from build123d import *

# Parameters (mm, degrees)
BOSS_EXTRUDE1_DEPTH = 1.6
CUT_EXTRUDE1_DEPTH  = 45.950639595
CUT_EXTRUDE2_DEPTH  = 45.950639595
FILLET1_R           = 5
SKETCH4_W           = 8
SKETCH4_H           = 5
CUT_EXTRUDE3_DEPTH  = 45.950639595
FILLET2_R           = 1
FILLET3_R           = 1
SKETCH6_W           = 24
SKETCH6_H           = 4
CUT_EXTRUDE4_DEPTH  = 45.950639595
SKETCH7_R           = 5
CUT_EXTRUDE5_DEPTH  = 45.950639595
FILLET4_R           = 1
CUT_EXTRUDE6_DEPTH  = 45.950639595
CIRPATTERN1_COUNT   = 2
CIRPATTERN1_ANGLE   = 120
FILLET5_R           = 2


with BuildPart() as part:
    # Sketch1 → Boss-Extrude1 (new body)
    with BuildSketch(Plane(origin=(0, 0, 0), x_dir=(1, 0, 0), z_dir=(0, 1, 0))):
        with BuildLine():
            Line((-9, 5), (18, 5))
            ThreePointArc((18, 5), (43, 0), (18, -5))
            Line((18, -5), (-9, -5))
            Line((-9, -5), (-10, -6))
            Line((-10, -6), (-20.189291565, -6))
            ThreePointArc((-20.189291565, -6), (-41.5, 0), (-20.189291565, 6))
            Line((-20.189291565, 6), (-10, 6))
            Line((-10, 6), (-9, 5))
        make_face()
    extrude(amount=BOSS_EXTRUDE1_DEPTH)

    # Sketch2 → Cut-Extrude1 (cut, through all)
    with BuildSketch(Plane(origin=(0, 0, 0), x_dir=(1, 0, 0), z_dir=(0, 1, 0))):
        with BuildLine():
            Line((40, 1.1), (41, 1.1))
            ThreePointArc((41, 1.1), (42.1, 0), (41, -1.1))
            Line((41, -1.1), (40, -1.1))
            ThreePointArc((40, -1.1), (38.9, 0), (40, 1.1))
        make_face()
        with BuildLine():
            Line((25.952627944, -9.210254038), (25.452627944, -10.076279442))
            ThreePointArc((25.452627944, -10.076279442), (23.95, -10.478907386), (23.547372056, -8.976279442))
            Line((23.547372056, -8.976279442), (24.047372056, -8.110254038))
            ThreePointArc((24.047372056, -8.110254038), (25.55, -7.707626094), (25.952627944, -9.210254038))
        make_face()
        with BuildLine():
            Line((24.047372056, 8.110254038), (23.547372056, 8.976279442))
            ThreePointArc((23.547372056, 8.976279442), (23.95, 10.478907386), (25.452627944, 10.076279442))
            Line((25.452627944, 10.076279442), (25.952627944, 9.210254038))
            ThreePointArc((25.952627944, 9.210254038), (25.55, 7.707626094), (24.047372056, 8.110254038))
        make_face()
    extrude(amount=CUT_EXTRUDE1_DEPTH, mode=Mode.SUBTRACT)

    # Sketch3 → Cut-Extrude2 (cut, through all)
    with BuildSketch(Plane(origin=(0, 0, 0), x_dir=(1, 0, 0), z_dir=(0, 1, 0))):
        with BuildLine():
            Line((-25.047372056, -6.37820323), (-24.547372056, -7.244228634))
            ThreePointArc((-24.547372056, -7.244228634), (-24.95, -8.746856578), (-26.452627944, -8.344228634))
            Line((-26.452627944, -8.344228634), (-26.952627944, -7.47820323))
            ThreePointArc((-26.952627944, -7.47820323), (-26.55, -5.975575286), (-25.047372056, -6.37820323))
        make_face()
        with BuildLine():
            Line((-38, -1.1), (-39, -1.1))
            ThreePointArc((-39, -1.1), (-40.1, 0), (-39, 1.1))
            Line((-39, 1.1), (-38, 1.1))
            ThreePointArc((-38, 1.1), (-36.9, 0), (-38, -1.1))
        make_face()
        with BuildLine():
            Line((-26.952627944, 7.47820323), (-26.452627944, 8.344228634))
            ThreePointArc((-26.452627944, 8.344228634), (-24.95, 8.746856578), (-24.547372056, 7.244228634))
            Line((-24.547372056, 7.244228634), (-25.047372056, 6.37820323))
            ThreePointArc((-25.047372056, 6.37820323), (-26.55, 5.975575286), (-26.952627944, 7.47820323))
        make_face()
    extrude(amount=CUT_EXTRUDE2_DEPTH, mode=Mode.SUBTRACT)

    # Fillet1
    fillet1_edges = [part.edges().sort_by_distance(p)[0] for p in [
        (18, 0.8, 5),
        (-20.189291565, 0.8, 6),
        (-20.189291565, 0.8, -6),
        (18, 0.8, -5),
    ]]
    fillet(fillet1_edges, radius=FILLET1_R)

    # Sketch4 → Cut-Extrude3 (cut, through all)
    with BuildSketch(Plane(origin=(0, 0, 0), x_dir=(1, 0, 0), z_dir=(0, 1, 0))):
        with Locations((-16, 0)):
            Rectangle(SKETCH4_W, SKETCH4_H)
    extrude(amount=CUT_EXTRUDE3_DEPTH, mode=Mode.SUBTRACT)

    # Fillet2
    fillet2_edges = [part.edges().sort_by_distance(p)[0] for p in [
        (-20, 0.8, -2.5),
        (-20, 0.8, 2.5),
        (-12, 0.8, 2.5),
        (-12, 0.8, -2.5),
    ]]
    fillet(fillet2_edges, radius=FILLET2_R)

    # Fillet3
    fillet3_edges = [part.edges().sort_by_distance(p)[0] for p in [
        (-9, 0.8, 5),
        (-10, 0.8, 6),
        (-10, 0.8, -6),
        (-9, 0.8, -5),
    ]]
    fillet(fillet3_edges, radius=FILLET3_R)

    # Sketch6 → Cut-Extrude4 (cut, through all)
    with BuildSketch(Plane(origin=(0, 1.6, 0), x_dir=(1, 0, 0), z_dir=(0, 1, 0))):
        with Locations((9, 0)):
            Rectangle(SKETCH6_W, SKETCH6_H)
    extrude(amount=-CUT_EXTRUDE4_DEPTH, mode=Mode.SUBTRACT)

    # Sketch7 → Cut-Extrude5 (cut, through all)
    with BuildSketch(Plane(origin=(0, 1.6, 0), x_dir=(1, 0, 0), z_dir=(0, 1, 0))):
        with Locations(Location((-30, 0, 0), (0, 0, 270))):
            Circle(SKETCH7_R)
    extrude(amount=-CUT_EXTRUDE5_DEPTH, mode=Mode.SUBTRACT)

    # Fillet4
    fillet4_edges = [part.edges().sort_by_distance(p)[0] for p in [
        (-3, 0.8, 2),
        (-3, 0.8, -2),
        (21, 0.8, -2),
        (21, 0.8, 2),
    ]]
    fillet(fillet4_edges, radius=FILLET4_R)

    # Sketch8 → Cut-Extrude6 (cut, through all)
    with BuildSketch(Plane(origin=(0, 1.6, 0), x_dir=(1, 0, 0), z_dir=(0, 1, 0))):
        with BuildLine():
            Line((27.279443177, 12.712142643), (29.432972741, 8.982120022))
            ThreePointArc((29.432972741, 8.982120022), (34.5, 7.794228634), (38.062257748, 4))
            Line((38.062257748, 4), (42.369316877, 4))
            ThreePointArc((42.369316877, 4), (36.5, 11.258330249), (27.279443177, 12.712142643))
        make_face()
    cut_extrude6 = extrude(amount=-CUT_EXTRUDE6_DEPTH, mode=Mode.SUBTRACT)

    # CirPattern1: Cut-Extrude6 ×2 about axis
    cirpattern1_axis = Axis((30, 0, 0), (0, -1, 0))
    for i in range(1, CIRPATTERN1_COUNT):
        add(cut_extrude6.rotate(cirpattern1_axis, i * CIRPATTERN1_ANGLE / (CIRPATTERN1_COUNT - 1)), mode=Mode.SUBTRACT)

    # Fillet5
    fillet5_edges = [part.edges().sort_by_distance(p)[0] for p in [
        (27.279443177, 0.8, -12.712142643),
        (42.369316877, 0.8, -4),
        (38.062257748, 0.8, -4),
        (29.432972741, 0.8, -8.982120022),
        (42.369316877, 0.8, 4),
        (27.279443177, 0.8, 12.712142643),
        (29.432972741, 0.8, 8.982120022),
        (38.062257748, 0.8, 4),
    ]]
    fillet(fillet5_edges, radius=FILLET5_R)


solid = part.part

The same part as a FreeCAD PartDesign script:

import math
import FreeCAD as App
import Part
import Sketcher

V = App.Vector
Q = App.Units.Quantity


def edges_at(feature, points):
    """Names of the edges that pass closest to the given points."""
    edges = feature.Shape.Edges
    near = lambda p: min(range(len(edges)), key=lambda i: edges[i].distToShape(Part.Vertex(*p))[0])
    return sorted({f"Edge{near(p) + 1}" for p in points})


def add_polygon(sketch, points):
    """Adds a closed chain of lines whose ends are joined by coincident constraints."""
    first, n = sketch.GeometryCount, len(points)
    for a, b in zip(points, points[1:] + points[:1]):
        sketch.addGeometry(Part.LineSegment(App.Vector(*a, 0), App.Vector(*b, 0)), False)
    for i in range(n):
        sketch.addConstraint(Sketcher.Constraint("Coincident", first + i, 2, first + (i + 1) % n, 1))

doc = App.newDocument("Part")
body = doc.addObject("PartDesign::Body", "Body")

sketch1 = body.newObject("Sketcher::SketchObject", "Sketch")
sketch1.AttachmentSupport = (doc.getObject("XZ_Plane"), [""])
sketch1.MapMode = "FlatFace"
sketch1.addGeometry([
    Part.LineSegment(V(18, -5, 0), V(-9, -5, 0)),
    Part.LineSegment(V(-9, -5, 0), V(-10, -6, 0)),
    Part.LineSegment(V(-10, -6, 0), V(-20.189292, -6, 0)),
    Part.ArcOfCircle(Part.Circle(V(-30, 0, 0), V(0, 0, 1), 11.5), math.radians(31.448981), math.radians(328.551019)),
    Part.LineSegment(V(-20.189292, 6, 0), V(-10, 6, 0)),
    Part.LineSegment(V(-10, 6, 0), V(-9, 5, 0)),
    Part.LineSegment(V(-9, 5, 0), V(18, 5, 0)),
    Part.ArcOfCircle(Part.Circle(V(30, 0, 0), V(0, 0, 1), 13), math.radians(-157.380135), math.radians(157.380135)),
], False)
sketch1.addConstraint([
    Sketcher.Constraint("Coincident", 0, 2, 1, 1),
    Sketcher.Constraint("Coincident", 1, 2, 2, 1),
    Sketcher.Constraint("Coincident", 2, 2, 3, 2),
    Sketcher.Constraint("Coincident", 3, 1, 4, 1),
    Sketcher.Constraint("Coincident", 4, 2, 5, 1),
    Sketcher.Constraint("Coincident", 5, 2, 6, 1),
    Sketcher.Constraint("Coincident", 6, 2, 7, 2),
    Sketcher.Constraint("Coincident", 7, 1, 0, 1),
    Sketcher.Constraint("Horizontal", 0),
    Sketcher.Constraint("Horizontal", 2),
    Sketcher.Constraint("Horizontal", 4),
    Sketcher.Constraint("Horizontal", 6),
    Sketcher.Constraint("Symmetric", 3, 3, 7, 3, -1, 1),
    Sketcher.Constraint("Symmetric", 2, 2, 3, 1, -1),
    Sketcher.Constraint("Symmetric", 0, 2, 5, 2, -1),
    Sketcher.Constraint("Perpendicular", 1, 5),
    Sketcher.Constraint("Vertical", 1, 2, 4, 2),
    Sketcher.Constraint("Radius", 7, Q("13 mm")),
    Sketcher.Constraint("Radius", 3, Q("11.5 mm")),
    Sketcher.Constraint("DistanceX", 0, 2, 0, 1, Q("27 mm")),
    Sketcher.Constraint("DistanceX", 3, 3, -1, 1, Q("30 mm")),
    Sketcher.Constraint("DistanceX", 0, 2, -1, 1, Q("9 mm")),
    Sketcher.Constraint("DistanceX", 1, 2, -1, 1, Q("10 mm")),
])
pad1 = body.newObject("PartDesign::Pad", "Pad")
pad1.Profile = sketch1
pad1.Length = 1.6
pad1.Reversed = True

sketch2 = body.newObject("Sketcher::SketchObject", "Sketch001")
sketch2.AttachmentSupport = (doc.getObject("XZ_Plane"), [""])
sketch2.MapMode = "FlatFace"
sketch2.addGeometry([
    Part.LineSegment(V(41, -1.1, 0), V(40, -1.1, 0)),
    Part.ArcOfCircle(Part.Circle(V(40, 0, 0), V(0, 0, 1), 1.1), math.radians(90), math.radians(270)),
    Part.LineSegment(V(40, 1.1, 0), V(41, 1.1, 0)),
    Part.ArcOfCircle(Part.Circle(V(41, 0, 0), V(0, 0, 1), 1.1), math.radians(-90), math.radians(90)),
    Part.LineSegment(V(25.452628, 10.076279, 0), V(25.952628, 9.210254, 0)),
    Part.ArcOfCircle(Part.Circle(V(25, 8.660254, 0), V(0, 0, 1), 1.1), math.radians(-150), math.radians(30)),
    Part.LineSegment(V(24.047372, 8.110254, 0), V(23.547372, 8.976279, 0)),
    Part.ArcOfCircle(Part.Circle(V(24.5, 9.526279, 0), V(0, 0, 1), 1.1), math.radians(30), math.radians(210)),
    Part.LineSegment(V(23.547372, -8.976279, 0), V(24.047372, -8.110254, 0)),
    Part.ArcOfCircle(Part.Circle(V(25, -8.660254, 0), V(0, 0, 1), 1.1), math.radians(-30), math.radians(150)),
    Part.LineSegment(V(25.952628, -9.210254, 0), V(25.452628, -10.076279, 0)),
    Part.ArcOfCircle(Part.Circle(V(24.5, -9.526279, 0), V(0, 0, 1), 1.1), math.radians(150), math.radians(330)),
], False)
sketch2.addConstraint([
    Sketcher.Constraint("Tangent", 0, 2, 1, 2),
    Sketcher.Constraint("Tangent", 1, 1, 2, 1),
    Sketcher.Constraint("Tangent", 2, 2, 3, 2),
    Sketcher.Constraint("Tangent", 3, 1, 0, 1),
    Sketcher.Constraint("Tangent", 4, 2, 5, 2),
    Sketcher.Constraint("Tangent", 5, 1, 6, 1),
    Sketcher.Constraint("Tangent", 6, 2, 7, 2),
    Sketcher.Constraint("Tangent", 7, 1, 4, 1),
    Sketcher.Constraint("Tangent", 8, 2, 9, 2),
    Sketcher.Constraint("Tangent", 9, 1, 10, 1),
    Sketcher.Constraint("Tangent", 10, 2, 11, 2),
    Sketcher.Constraint("Tangent", 11, 1, 8, 1),
    Sketcher.Constraint("Horizontal", 0),
    Sketcher.Constraint("Horizontal", 2),
    Sketcher.Constraint("Equal", 3, 5),
    Sketcher.Constraint("Equal", 5, 7),
    Sketcher.Constraint("Equal", 7, 9),
    Sketcher.Constraint("Equal", 9, 11),
    Sketcher.Constraint("Symmetric", 5, 3, 9, 3, -1),
    Sketcher.Constraint("Symmetric", 7, 3, 11, 3, -1),
    Sketcher.Constraint("PointOnObject", 1, 3, -1),
    Sketcher.Constraint("Radius", 1, Q("1.1 mm")),
    Sketcher.Constraint("DistanceX", 0, 2, 0, 1, Q("1 mm")),
    Sketcher.Constraint("Angle", 4, Q("-60 deg")),
    Sketcher.Constraint("Distance", 4, Q("1 mm")),
    Sketcher.Constraint("DistanceX", -1, 1, 1, 3, Q("40 mm")),
    Sketcher.Constraint("DistanceX", -1, 1, 5, 3, Q("25 mm")),
    Sketcher.Constraint("DistanceY", -1, 1, 7, 3, Q("9.526279 mm")),
])
pocket1 = body.newObject("PartDesign::Pocket", "Pocket")
pocket1.Profile = sketch2
pocket1.Type = "ThroughAll"

sketch3 = body.newObject("Sketcher::SketchObject", "Sketch002")
sketch3.AttachmentSupport = (doc.getObject("XZ_Plane"), [""])
sketch3.MapMode = "FlatFace"
sketch3.addGeometry([
    Part.LineSegment(V(-24.547372, 7.244229, 0), V(-25.047372, 6.378203, 0)),
    Part.ArcOfCircle(Part.Circle(V(-26, 6.928203, 0), V(0, 0, 1), 1.1), math.radians(150), math.radians(330)),
    Part.LineSegment(V(-26.952628, 7.478203, 0), V(-26.452628, 8.344229, 0)),
    Part.ArcOfCircle(Part.Circle(V(-25.5, 7.794229, 0), V(0, 0, 1), 1.1), math.radians(-30), math.radians(150)),
    Part.LineSegment(V(-39, 1.1, 0), V(-38, 1.1, 0)),
    Part.ArcOfCircle(Part.Circle(V(-38, 0, 0), V(0, 0, 1), 1.1), math.radians(-90), math.radians(90)),
    Part.LineSegment(V(-38, -1.1, 0), V(-39, -1.1, 0)),
    Part.ArcOfCircle(Part.Circle(V(-39, 0, 0), V(0, 0, 1), 1.1), math.radians(90), math.radians(270)),
    Part.LineSegment(V(-26.452628, -8.344229, 0), V(-26.952628, -7.478203, 0)),
    Part.ArcOfCircle(Part.Circle(V(-26, -6.928203, 0), V(0, 0, 1), 1.1), math.radians(30), math.radians(210)),
    Part.LineSegment(V(-25.047372, -6.378203, 0), V(-24.547372, -7.244229, 0)),
    Part.ArcOfCircle(Part.Circle(V(-25.5, -7.794229, 0), V(0, 0, 1), 1.1), math.radians(-150), math.radians(30)),
], False)
sketch3.addConstraint([
    Sketcher.Constraint("Tangent", 0, 2, 1, 2),
    Sketcher.Constraint("Tangent", 1, 1, 2, 1),
    Sketcher.Constraint("Tangent", 2, 2, 3, 2),
    Sketcher.Constraint("Tangent", 3, 1, 0, 1),
    Sketcher.Constraint("Tangent", 4, 2, 5, 2),
    Sketcher.Constraint("Tangent", 5, 1, 6, 1),
    Sketcher.Constraint("Tangent", 6, 2, 7, 2),
    Sketcher.Constraint("Tangent", 7, 1, 4, 1),
    Sketcher.Constraint("Tangent", 8, 2, 9, 2),
    Sketcher.Constraint("Tangent", 9, 1, 10, 1),
    Sketcher.Constraint("Tangent", 10, 2, 11, 2),
    Sketcher.Constraint("Tangent", 11, 1, 8, 1),
    Sketcher.Constraint("Horizontal", 4),
    Sketcher.Constraint("Horizontal", 6),
    Sketcher.Constraint("Equal", 1, 3),
    Sketcher.Constraint("Equal", 3, 5),
    Sketcher.Constraint("Equal", 7, 9),
    Sketcher.Constraint("Equal", 9, 11),
    Sketcher.Constraint("Symmetric", 1, 3, 9, 3, -1),
    Sketcher.Constraint("Symmetric", 3, 3, 11, 3, -1),
    Sketcher.Constraint("PointOnObject", 5, 3, -1),
    Sketcher.Constraint("Radius", 1, Q("1.1 mm")),
    Sketcher.Constraint("DistanceX", 4, 1, 4, 2, Q("1 mm")),
    Sketcher.Constraint("Angle", 0, Q("-120 deg")),
    Sketcher.Constraint("Distance", 0, Q("1 mm")),
    Sketcher.Constraint("DistanceX", 1, 3, -1, 1, Q("26 mm")),
    Sketcher.Constraint("DistanceX", 5, 3, -1, 1, Q("38 mm")),
    Sketcher.Constraint("DistanceY", -1, 1, 3, 3, Q("7.794229 mm")),
])
pocket2 = body.newObject("PartDesign::Pocket", "Pocket001")
pocket2.Profile = sketch3
pocket2.Type = "ThroughAll"
doc.recompute()

fillet = body.newObject("PartDesign::Fillet", "Fillet")
fillet.Base = (pocket2, edges_at(pocket2, [
    (18, 0.8, 5),
    (-20.189, 0.8, 6),
    (-20.189, 0.8, -6),
    (18, 0.8, -5),
]))
fillet.Radius = 5

sketch4 = body.newObject("Sketcher::SketchObject", "Sketch003")
sketch4.AttachmentSupport = (doc.getObject("XZ_Plane"), [""])
sketch4.MapMode = "FlatFace"
add_polygon(sketch4, [(-20, -2.5), (-20, 2.5), (-12, 2.5), (-12, -2.5)])
sketch4.addConstraint([
    Sketcher.Constraint("Vertical", 0),
    Sketcher.Constraint("Horizontal", 1),
    Sketcher.Constraint("Vertical", 2),
    Sketcher.Constraint("Horizontal", 3),
    Sketcher.Constraint("DistanceX", 1, 1, 1, 2, Q("8 mm")),
    Sketcher.Constraint("DistanceY", 0, 1, 0, 2, Q("5 mm")),
    Sketcher.Constraint("DistanceX", 0, 2, -1, 1, Q("20 mm")),
    Sketcher.Constraint("DistanceY", -1, 1, 0, 2, Q("2.5 mm")),
])
pocket3 = body.newObject("PartDesign::Pocket", "Pocket002")
pocket3.Profile = sketch4
pocket3.Type = "ThroughAll"
doc.recompute()

fillet2 = body.newObject("PartDesign::Fillet", "Fillet001")
fillet2.Base = (pocket3, edges_at(pocket3, [
    (-20, 0.8, -2.5),
    (-20, 0.8, 2.5),
    (-12, 0.8, 2.5),
    (-12, 0.8, -2.5),
]))
fillet2.Radius = 1
doc.recompute()

fillet3 = body.newObject("PartDesign::Fillet", "Fillet002")
fillet3.Base = (fillet2, edges_at(fillet2, [
    (-9, 0.8, 5),
    (-10, 0.8, 6),
    (-10, 0.8, -6),
    (-9, 0.8, -5),
]))
fillet3.Radius = 1

sketch5 = body.newObject("Sketcher::SketchObject", "Sketch004")
sketch5.AttachmentSupport = (doc.getObject("XZ_Plane"), [""])
sketch5.MapMode = "FlatFace"
sketch5.AttachmentOffset = App.Placement(V(0, 0, -1.6), App.Rotation())
add_polygon(sketch5, [(-3, -2), (-3, 2), (21, 2), (21, -2)])
sketch5.addConstraint([
    Sketcher.Constraint("Vertical", 0),
    Sketcher.Constraint("Horizontal", 1),
    Sketcher.Constraint("Vertical", 2),
    Sketcher.Constraint("Horizontal", 3),
    Sketcher.Constraint("DistanceX", 1, 1, 1, 2, Q("24 mm")),
    Sketcher.Constraint("DistanceY", 0, 1, 0, 2, Q("4 mm")),
    Sketcher.Constraint("DistanceX", 0, 2, -1, 1, Q("3 mm")),
    Sketcher.Constraint("DistanceY", -1, 1, 0, 2, Q("2 mm")),
])
pocket4 = body.newObject("PartDesign::Pocket", "Pocket003")
pocket4.Profile = sketch5
pocket4.Type = "ThroughAll"
pocket4.Reversed = True

sketch6 = body.newObject("Sketcher::SketchObject", "Sketch005")
sketch6.AttachmentSupport = (doc.getObject("XZ_Plane"), [""])
sketch6.MapMode = "FlatFace"
sketch6.AttachmentOffset = App.Placement(V(0, 0, -1.6), App.Rotation())
sketch6.addGeometry(Part.Circle(V(-30, 0, 0), V(0, 0, 1), 5), False)
sketch6.addConstraint([
    Sketcher.Constraint("PointOnObject", 0, 3, -1),
    Sketcher.Constraint("Diameter", 0, Q("10 mm")),
    Sketcher.Constraint("DistanceX", 0, 3, -1, 1, Q("30 mm")),
])
pocket5 = body.newObject("PartDesign::Pocket", "Pocket004")
pocket5.Profile = sketch6
pocket5.Type = "ThroughAll"
pocket5.Reversed = True
doc.recompute()

fillet4 = body.newObject("PartDesign::Fillet", "Fillet003")
fillet4.Base = (pocket5, edges_at(pocket5, [
    (-3, 0.8, 2),
    (-3, 0.8, -2),
    (21, 0.8, -2),
    (21, 0.8, 2),
]))
fillet4.Radius = 1

sketch7 = body.newObject("Sketcher::SketchObject", "Sketch006")
sketch7.AttachmentSupport = (doc.getObject("XZ_Plane"), [""])
sketch7.MapMode = "FlatFace"
sketch7.AttachmentOffset = App.Placement(V(0, 0, -1.6), App.Rotation())
sketch7.addGeometry([
    Part.LineSegment(V(27.279443, -12.712143, 0), V(29.432973, -8.98212, 0)),
    Part.ArcOfCircle(Part.Circle(V(30, 0, 0), V(0, 0, 1), 9), math.radians(-93.6122), math.radians(-26.3878)),
    Part.LineSegment(V(38.062258, -4, 0), V(42.369317, -4, 0)),
    Part.ArcOfCircle(Part.Circle(V(30, 0, 0), V(0, 0, 1), 13), math.radians(-102.079787), math.radians(-17.920213)),
], False)
sketch7.addConstraint([
    Sketcher.Constraint("Coincident", 0, 2, 1, 1),
    Sketcher.Constraint("Coincident", 1, 2, 2, 1),
    Sketcher.Constraint("Coincident", 2, 2, 3, 2),
    Sketcher.Constraint("Coincident", 3, 1, 0, 1),
    Sketcher.Constraint("Horizontal", 2),
    Sketcher.Constraint("Coincident", 3, 3, 1, 3),
    Sketcher.Constraint("PointOnObject", 1, 3, -1),
    Sketcher.Constraint("Radius", 1, Q("9 mm")),
    Sketcher.Constraint("Radius", 3, Q("13 mm")),
    Sketcher.Constraint("Angle", 0, Q("60 deg")),
    Sketcher.Constraint("DistanceX", -1, 1, 1, 3, Q("30 mm")),
    Sketcher.Constraint("DistanceY", 1, 2, -1, 1, Q("4 mm")),
    Sketcher.Constraint("Distance", 0, Q("4.307059 mm")),
])
pocket6 = body.newObject("PartDesign::Pocket", "Pocket005")
pocket6.Profile = sketch7
pocket6.Type = "ThroughAll"
pocket6.Reversed = True
doc.recompute()

datumline = body.newObject("PartDesign::Line", "DatumLine")
datumline.Placement = App.Placement(V(30, 0, 0), App.Rotation(V(0, 0, 1), V(0, -1, 0)))
polarpattern = body.newObject("PartDesign::PolarPattern", "PolarPattern")
polarpattern.Originals = [pocket6]
polarpattern.Axis = (datumline, [""])
polarpattern.Angle = 120
polarpattern.Occurrences = 2
body.Tip = polarpattern
doc.recompute()

fillet5 = body.newObject("PartDesign::Fillet", "Fillet004")
fillet5.Base = (polarpattern, edges_at(polarpattern, [
    (27.279, 0.8, -12.712),
    (42.369, 0.8, -4),
    (38.062, 0.8, -4),
    (29.433, 0.8, -8.982),
    (42.369, 0.8, 4),
    (27.279, 0.8, 12.712),
    (29.433, 0.8, 8.982),
    (38.062, 0.8, 4),
]))
fillet5.Radius = 2

doc.recompute()
